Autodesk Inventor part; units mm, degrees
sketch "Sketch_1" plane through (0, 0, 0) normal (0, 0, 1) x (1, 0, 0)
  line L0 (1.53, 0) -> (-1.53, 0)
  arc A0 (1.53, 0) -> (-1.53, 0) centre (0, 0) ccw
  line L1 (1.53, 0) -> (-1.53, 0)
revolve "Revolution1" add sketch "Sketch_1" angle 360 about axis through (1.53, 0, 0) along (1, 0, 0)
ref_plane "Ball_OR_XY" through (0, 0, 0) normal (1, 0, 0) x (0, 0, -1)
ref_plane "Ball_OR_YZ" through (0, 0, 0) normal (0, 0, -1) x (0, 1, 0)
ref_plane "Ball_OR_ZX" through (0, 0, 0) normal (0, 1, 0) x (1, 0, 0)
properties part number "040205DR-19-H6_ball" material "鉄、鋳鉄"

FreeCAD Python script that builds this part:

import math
import FreeCAD as App
import Part
import Sketcher

V = App.Vector

doc = App.newDocument("Part")
body = doc.addObject("PartDesign::Body", "Body")

sketch1 = body.newObject("Sketcher::SketchObject", "Sketch")
sketch1.AttachmentSupport = (doc.getObject("XY_Plane"), [""])
sketch1.MapMode = "FlatFace"
sketch1.addGeometry(Part.LineSegment(V(-1.5, 0, 0), V(1.5, 0, 0)), False)
sketch1.addGeometry(Part.ArcOfCircle(Part.Circle(V(0, 0, 0), V(0, 0, 1), 1.5), math.radians(0), math.radians(180)), False)
sketch1.addConstraint(Sketcher.Constraint("Coincident", 0, 1, 1, 2))
sketch1.addConstraint(Sketcher.Constraint("Coincident", 1, 1, 0, 2))
sketch1.addConstraint(Sketcher.Constraint("Horizontal", 0))
sketch1.addConstraint(Sketcher.Constraint("Coincident", 1, 3, -1, 1))
sketch1.addConstraint(Sketcher.Constraint("PointOnObject", 0, 1, -1))
sketch1.addConstraint(Sketcher.Constraint("Radius", 1, 1.53))
revolution = body.newObject("PartDesign::Revolution", "Revolution")
revolution.Profile = sketch1
revolution.ReferenceAxis = (sketch1, ["H_Axis"])
revolution.Angle = 360

doc.recompute()
